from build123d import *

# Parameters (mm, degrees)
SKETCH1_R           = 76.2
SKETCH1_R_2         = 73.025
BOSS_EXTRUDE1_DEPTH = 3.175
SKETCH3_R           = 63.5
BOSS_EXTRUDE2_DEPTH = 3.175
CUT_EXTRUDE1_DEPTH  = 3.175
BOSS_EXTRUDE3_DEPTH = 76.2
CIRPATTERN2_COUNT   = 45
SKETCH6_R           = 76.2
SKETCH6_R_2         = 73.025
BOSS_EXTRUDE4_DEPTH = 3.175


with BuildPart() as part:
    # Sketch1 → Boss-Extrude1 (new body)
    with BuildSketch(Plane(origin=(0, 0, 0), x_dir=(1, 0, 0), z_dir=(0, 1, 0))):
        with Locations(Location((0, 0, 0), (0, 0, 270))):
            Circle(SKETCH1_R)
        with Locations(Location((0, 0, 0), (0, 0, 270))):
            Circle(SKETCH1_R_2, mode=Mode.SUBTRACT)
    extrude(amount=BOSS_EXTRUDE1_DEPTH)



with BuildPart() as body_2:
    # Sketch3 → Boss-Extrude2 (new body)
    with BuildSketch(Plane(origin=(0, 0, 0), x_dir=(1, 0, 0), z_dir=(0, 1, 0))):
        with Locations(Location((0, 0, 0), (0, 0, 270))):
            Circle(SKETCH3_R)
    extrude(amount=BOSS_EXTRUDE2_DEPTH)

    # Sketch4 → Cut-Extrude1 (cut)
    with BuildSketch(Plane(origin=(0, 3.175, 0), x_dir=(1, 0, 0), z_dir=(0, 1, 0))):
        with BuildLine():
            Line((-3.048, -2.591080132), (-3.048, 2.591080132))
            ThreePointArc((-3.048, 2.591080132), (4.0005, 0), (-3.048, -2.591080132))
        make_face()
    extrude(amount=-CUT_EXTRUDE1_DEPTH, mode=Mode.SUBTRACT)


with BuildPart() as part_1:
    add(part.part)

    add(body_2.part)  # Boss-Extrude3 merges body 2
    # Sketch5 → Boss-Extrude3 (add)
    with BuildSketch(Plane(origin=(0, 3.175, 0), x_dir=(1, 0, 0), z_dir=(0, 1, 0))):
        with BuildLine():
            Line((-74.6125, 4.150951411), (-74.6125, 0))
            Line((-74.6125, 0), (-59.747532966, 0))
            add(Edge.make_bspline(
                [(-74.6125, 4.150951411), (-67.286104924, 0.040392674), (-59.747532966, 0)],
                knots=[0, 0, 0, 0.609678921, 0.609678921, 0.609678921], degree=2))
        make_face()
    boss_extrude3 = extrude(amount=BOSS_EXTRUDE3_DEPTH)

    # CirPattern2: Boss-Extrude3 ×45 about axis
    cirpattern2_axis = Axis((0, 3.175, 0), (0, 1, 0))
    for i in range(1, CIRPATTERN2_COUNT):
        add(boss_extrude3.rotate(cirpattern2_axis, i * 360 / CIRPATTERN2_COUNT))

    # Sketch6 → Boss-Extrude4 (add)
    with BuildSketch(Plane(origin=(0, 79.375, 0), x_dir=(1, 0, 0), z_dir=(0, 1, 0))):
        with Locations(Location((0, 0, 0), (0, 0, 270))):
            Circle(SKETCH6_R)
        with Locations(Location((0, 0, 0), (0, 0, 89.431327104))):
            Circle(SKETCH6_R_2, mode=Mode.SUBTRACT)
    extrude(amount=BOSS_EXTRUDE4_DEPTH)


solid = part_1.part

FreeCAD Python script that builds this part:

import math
import FreeCAD as App
import Part
import Sketcher
Q = App.Units.Quantity

doc = App.newDocument("Part")
body = doc.addObject("PartDesign::Body", "Body")

# Sketch on XZ plane
sketch1 = body.newObject("Sketcher::SketchObject", "Sketch")
sketch1.AttachmentSupport = (doc.getObject("XZ_Plane"), [""])
sketch1.MapMode = "FlatFace"
sketch1.addGeometry([
    Part.Circle(App.Vector(0, 0, 0), App.Vector(0, 0, 1), 76),
    Part.Circle(App.Vector(0, 0, 0), App.Vector(0, 0, 1), 73),
], False)
sketch1.addConstraint([
    Sketcher.Constraint("Coincident", 0, 3, -1, 1),
    Sketcher.Constraint("Coincident", 1, 3, -1, 1),
    Sketcher.Constraint("Diameter", 0, Q("6 in")),
    Sketcher.Constraint("Diameter", 1, Q("5.75 in")),
])
pad1 = body.newObject("PartDesign::Pad", "Pad")
pad1.Profile = sketch1
pad1.Length = Q("0.125 in")
pad1.Reversed = True
body2 = doc.addObject("PartDesign::Body", "Body001")

# Sketch on XZ plane
sketch2 = body2.newObject("Sketcher::SketchObject", "Sketch001")
sketch2.AttachmentSupport = (doc.getObject("XZ_Plane001"), [""])
sketch2.MapMode = "FlatFace"
sketch2.addGeometry(Part.Circle(App.Vector(0, 0, 0), App.Vector(0, 0, 1), 64), False)
sketch2.addConstraint([
    Sketcher.Constraint("Coincident", 0, 3, -1, 1),
    Sketcher.Constraint("Diameter", 0, Q("5 in")),
])
pad2 = body2.newObject("PartDesign::Pad", "Pad001")
pad2.Profile = sketch2
pad2.Length = Q("0.125 in")
pad2.Reversed = True

# Sketch on XZ plane
sketch3 = body2.newObject("Sketcher::SketchObject", "Sketch002")
sketch3.AttachmentSupport = (doc.getObject("XZ_Plane001"), [""])
sketch3.MapMode = "FlatFace"
sketch3.AttachmentOffset = App.Placement(App.Vector(0, 0, -0.125 * 25.4), App.Rotation())
sketch3.addGeometry([
    Part.LineSegment(App.Vector(-3, -2.6, 0), App.Vector(-3, 2.6, 0)),
    Part.ArcOfCircle(Part.Circle(App.Vector(0, 0, 0), App.Vector(0, 0, 1), 4), math.radians(-140), math.radians(140)),
], False)
sketch3.addConstraint([
    Sketcher.Constraint("Coincident", 0, 1, 1, 1),
    Sketcher.Constraint("Coincident", 1, 2, 0, 2),
    Sketcher.Constraint("Vertical", 0),
    Sketcher.Constraint("Coincident", 1, 3, -1, 1),
    Sketcher.Constraint("Radius", 1, Q("0.1575 in")),
    Sketcher.Constraint("DistanceX", 0, 1, -1, 1, Q("0.12 in")),
])
pocket1 = body2.newObject("PartDesign::Pocket", "Pocket")
pocket1.Profile = sketch3
pocket1.Length = Q("0.125 in")
pocket1.Reversed = True
body.AllowCompound = True
doc.recompute()

boolean = body.newObject("PartDesign::Boolean", "Boolean")
boolean.Type = "Fuse"
boolean.addObjects([body2])

# Sketch on XZ plane
sketch4 = body.newObject("Sketcher::SketchObject", "Sketch003")
sketch4.AttachmentSupport = (doc.getObject("XZ_Plane"), [""])
sketch4.MapMode = "FlatFace"
sketch4.AttachmentOffset = App.Placement(App.Vector(0, 0, -0.125 * 25.4), App.Rotation())
sketch4.addGeometry([
    Part.LineSegment(App.Vector(-74.6125, -4.150951, 0), App.Vector(-74.6125, 0, 0)),
    Part.LineSegment(App.Vector(-74.6125, 0, 0), App.Vector(-59.747533, 0, 0)),
    Part.BSplineCurve([App.Vector(-74.6125, -4.150951, 0), App.Vector(-67.286105, -0.040393, 0), App.Vector(-59.747533, 0, 0)], [3, 3], [0, 0.609678921], False, 2, [1, 1, 1], False),
], False)
sketch4.addConstraint([
    Sketcher.Constraint("Block", 2),
    Sketcher.Constraint("Coincident", 0, 2, 1, 1),
    Sketcher.Constraint("Coincident", 1, 2, 2, 2),
    Sketcher.Constraint("Coincident", 2, 1, 0, 1),
    Sketcher.Constraint("Vertical", 0),
    Sketcher.Constraint("Horizontal", 1),
])
pad3 = body.newObject("PartDesign::Pad", "Pad002")
pad3.Profile = sketch4
pad3.Length = Q("3 in")
pad3.Reversed = True
doc.recompute()

polarpattern = body.newObject("PartDesign::PolarPattern", "PolarPattern")
polarpattern.Originals = [pad3]
polarpattern.Axis = (doc.getObject("Y_Axis"), [""])
polarpattern.Angle = 360
polarpattern.Occurrences = 45
body.Tip = polarpattern

# Sketch on XZ plane
sketch5 = body.newObject("Sketcher::SketchObject", "Sketch004")
sketch5.AttachmentSupport = (doc.getObject("XZ_Plane"), [""])
sketch5.MapMode = "FlatFace"
sketch5.AttachmentOffset = App.Placement(App.Vector(0, 0, -3.125 * 25.4), App.Rotation())
sketch5.addGeometry([
    Part.Circle(App.Vector(0, 0, 0), App.Vector(0, 0, 1), 76),
    Part.Circle(App.Vector(0, 0, 0), App.Vector(0, 0, 1), 73),
], False)
sketch5.addConstraint([
    Sketcher.Constraint("Coincident", 0, 3, -1, 1),
    Sketcher.Constraint("Coincident", 1, 3, -1, 1),
    Sketcher.Constraint("Diameter", 0, Q("6 in")),
    Sketcher.Constraint("Diameter", 1, Q("5.75 in")),
])
pad4 = body.newObject("PartDesign::Pad", "Pad003")
pad4.Profile = sketch5
pad4.Length = Q("0.125 in")
pad4.Reversed = True

doc.recompute()
